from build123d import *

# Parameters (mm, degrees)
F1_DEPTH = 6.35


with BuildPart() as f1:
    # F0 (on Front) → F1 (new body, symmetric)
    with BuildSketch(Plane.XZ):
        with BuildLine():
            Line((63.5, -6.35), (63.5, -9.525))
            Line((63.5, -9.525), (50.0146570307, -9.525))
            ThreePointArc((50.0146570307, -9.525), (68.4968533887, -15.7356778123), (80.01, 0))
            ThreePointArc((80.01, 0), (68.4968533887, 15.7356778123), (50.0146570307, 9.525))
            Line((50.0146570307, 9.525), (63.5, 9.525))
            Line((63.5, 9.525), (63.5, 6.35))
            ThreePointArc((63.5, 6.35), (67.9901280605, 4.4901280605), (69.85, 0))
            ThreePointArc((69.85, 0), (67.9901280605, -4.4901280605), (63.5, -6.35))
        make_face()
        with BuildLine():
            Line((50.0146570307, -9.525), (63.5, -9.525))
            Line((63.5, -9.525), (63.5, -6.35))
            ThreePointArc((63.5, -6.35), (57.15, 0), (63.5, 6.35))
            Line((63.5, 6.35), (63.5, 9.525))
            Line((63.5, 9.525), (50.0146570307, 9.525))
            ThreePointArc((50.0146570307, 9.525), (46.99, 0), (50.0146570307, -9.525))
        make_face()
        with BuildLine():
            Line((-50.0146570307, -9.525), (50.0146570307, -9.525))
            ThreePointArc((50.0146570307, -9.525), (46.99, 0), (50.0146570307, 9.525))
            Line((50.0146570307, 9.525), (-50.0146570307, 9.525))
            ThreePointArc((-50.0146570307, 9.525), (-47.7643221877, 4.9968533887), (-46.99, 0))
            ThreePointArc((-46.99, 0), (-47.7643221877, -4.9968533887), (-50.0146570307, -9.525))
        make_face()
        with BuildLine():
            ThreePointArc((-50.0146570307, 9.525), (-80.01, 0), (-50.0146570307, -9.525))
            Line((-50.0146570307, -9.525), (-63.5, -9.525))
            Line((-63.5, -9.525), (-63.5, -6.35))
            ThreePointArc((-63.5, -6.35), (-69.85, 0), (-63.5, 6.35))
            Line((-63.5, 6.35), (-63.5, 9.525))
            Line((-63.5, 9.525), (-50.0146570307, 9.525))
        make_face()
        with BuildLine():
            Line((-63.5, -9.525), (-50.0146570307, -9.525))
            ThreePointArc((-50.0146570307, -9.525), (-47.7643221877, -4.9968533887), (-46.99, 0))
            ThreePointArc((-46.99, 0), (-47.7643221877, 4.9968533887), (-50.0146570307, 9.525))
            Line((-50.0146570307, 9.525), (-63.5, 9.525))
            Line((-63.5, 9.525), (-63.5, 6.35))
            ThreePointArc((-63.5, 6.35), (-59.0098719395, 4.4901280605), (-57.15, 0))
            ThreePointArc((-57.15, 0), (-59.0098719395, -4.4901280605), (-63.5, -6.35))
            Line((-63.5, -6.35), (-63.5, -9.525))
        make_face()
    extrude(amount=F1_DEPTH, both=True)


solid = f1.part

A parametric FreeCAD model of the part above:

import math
import FreeCAD as App
import Part
import Sketcher
Q = App.Units.Quantity

doc = App.newDocument("Part")
body = doc.addObject("PartDesign::Body", "Body")

# Sketch on XZ plane
sketch1 = body.newObject("Sketcher::SketchObject", "Sketch")
sketch1.AttachmentSupport = (doc.getObject("XZ_Plane"), [""])
sketch1.MapMode = "FlatFace"
sketch1.addGeometry(Part.ArcOfCircle(Part.Circle(App.Vector(63.5, 0, 0), App.Vector(0, 0, 1), 16.51), math.radians(-144.765582), math.radians(0)), False)
sketch1.addGeometry(Part.ArcOfCircle(Part.Circle(App.Vector(63.5, 0, 0), App.Vector(0, 0, 1), 16.51), math.radians(0), math.radians(144.765582)), False)
sketch1.addGeometry(Part.LineSegment(App.Vector(50.014657, 9.525, 0), App.Vector(-50.014657, 9.525, 0)), False)
sketch1.addGeometry(Part.ArcOfCircle(Part.Circle(App.Vector(-63.5, 0, 0), App.Vector(0, 0, 1), 16.51), math.radians(35.234418), math.radians(324.765582)), False)
sketch1.addGeometry(Part.LineSegment(App.Vector(-50.014657, -9.525, 0), App.Vector(50.014657, -9.525, 0)), False)
sketch1.addGeometry(Part.ArcOfCircle(Part.Circle(App.Vector(63.5, 0, 0), App.Vector(0, 0, 1), 6.35), math.radians(0), math.radians(90)), False)
sketch1.addGeometry(Part.ArcOfCircle(Part.Circle(App.Vector(63.5, 0, 0), App.Vector(0, 0, 1), 6.35), math.radians(-90), math.radians(0)), False)
sketch1.addGeometry(Part.ArcOfCircle(Part.Circle(App.Vector(63.5, 0, 0), App.Vector(0, 0, 1), 6.35), math.radians(90), math.radians(270)), False)
sketch1.addGeometry(Part.ArcOfCircle(Part.Circle(App.Vector(-63.5, 0, 0), App.Vector(0, 0, 1), 6.35), math.radians(-90), math.radians(0)), False)
sketch1.addGeometry(Part.ArcOfCircle(Part.Circle(App.Vector(-63.5, 0, 0), App.Vector(0, 0, 1), 6.35), math.radians(90), math.radians(270)), False)
sketch1.addGeometry(Part.ArcOfCircle(Part.Circle(App.Vector(-63.5, 0, 0), App.Vector(0, 0, 1), 6.35), math.radians(0), math.radians(90)), False)
sketch1.addConstraint(Sketcher.Constraint("Tangent", 0, 2, 1, 1))
sketch1.addConstraint(Sketcher.Constraint("Coincident", 1, 2, 2, 1))
sketch1.addConstraint(Sketcher.Constraint("Coincident", 2, 2, 3, 1))
sketch1.addConstraint(Sketcher.Constraint("Coincident", 3, 2, 4, 1))
sketch1.addConstraint(Sketcher.Constraint("Coincident", 4, 2, 0, 1))
sketch1.addConstraint(Sketcher.Constraint("Tangent", 5, 1, 6, 2))
sketch1.addConstraint(Sketcher.Constraint("Tangent", 6, 1, 7, 2))
sketch1.addConstraint(Sketcher.Constraint("Tangent", 7, 1, 5, 2))
sketch1.addConstraint(Sketcher.Constraint("Tangent", 8, 1, 9, 2))
sketch1.addConstraint(Sketcher.Constraint("Tangent", 9, 1, 10, 2))
sketch1.addConstraint(Sketcher.Constraint("Tangent", 10, 1, 8, 2))
sketch1.addConstraint(Sketcher.Constraint("Horizontal", 2))
sketch1.addConstraint(Sketcher.Constraint("Horizontal", 4))
sketch1.addConstraint(Sketcher.Constraint("Coincident", 5, 3, 0, 3))
sketch1.addConstraint(Sketcher.Constraint("Coincident", 8, 3, 3, 3))
sketch1.addConstraint(Sketcher.Constraint("Equal", 0, 1))
sketch1.addConstraint(Sketcher.Constraint("Equal", 1, 3))
sketch1.addConstraint(Sketcher.Constraint("Equal", 7, 8))
sketch1.addConstraint(Sketcher.Constraint("Symmetric", 0, 3, 3, 3, -1, 1))
sketch1.addConstraint(Sketcher.Constraint("Symmetric", 6, 1, 8, 1, -2))
sketch1.addConstraint(Sketcher.Constraint("PointOnObject", 0, 2, -1))
sketch1.addConstraint(Sketcher.Constraint("PointOnObject", 5, 1, -1))
sketch1.addConstraint(Sketcher.Constraint("PointOnObject", 10, 1, -1))
sketch1.addConstraint(Sketcher.Constraint("Vertical", 2, 2, 3, 2))
sketch1.addConstraint(Sketcher.Constraint("Vertical", 7, 3, 6, 1))
sketch1.addConstraint(Sketcher.Constraint("Vertical", 6, 1, 7, 1))
sketch1.addConstraint(Sketcher.Constraint("Vertical", 8, 1, 9, 1))
sketch1.addConstraint(Sketcher.Constraint("Radius", 0, Q("0.65 in")))
sketch1.addConstraint(Sketcher.Constraint("Radius", 5, Q("0.25 in")))
sketch1.addConstraint(Sketcher.Constraint("DistanceX", 3, 3, 0, 3, Q("5 in")))
sketch1.addConstraint(Sketcher.Constraint("DistanceY", 3, 2, 2, 2, Q("0.75 in")))
pad1 = body.newObject("PartDesign::Pad", "Pad")
pad1.Profile = sketch1
pad1.Length = Q("0.5 in")
pad1.Midplane = True

doc.recompute()
